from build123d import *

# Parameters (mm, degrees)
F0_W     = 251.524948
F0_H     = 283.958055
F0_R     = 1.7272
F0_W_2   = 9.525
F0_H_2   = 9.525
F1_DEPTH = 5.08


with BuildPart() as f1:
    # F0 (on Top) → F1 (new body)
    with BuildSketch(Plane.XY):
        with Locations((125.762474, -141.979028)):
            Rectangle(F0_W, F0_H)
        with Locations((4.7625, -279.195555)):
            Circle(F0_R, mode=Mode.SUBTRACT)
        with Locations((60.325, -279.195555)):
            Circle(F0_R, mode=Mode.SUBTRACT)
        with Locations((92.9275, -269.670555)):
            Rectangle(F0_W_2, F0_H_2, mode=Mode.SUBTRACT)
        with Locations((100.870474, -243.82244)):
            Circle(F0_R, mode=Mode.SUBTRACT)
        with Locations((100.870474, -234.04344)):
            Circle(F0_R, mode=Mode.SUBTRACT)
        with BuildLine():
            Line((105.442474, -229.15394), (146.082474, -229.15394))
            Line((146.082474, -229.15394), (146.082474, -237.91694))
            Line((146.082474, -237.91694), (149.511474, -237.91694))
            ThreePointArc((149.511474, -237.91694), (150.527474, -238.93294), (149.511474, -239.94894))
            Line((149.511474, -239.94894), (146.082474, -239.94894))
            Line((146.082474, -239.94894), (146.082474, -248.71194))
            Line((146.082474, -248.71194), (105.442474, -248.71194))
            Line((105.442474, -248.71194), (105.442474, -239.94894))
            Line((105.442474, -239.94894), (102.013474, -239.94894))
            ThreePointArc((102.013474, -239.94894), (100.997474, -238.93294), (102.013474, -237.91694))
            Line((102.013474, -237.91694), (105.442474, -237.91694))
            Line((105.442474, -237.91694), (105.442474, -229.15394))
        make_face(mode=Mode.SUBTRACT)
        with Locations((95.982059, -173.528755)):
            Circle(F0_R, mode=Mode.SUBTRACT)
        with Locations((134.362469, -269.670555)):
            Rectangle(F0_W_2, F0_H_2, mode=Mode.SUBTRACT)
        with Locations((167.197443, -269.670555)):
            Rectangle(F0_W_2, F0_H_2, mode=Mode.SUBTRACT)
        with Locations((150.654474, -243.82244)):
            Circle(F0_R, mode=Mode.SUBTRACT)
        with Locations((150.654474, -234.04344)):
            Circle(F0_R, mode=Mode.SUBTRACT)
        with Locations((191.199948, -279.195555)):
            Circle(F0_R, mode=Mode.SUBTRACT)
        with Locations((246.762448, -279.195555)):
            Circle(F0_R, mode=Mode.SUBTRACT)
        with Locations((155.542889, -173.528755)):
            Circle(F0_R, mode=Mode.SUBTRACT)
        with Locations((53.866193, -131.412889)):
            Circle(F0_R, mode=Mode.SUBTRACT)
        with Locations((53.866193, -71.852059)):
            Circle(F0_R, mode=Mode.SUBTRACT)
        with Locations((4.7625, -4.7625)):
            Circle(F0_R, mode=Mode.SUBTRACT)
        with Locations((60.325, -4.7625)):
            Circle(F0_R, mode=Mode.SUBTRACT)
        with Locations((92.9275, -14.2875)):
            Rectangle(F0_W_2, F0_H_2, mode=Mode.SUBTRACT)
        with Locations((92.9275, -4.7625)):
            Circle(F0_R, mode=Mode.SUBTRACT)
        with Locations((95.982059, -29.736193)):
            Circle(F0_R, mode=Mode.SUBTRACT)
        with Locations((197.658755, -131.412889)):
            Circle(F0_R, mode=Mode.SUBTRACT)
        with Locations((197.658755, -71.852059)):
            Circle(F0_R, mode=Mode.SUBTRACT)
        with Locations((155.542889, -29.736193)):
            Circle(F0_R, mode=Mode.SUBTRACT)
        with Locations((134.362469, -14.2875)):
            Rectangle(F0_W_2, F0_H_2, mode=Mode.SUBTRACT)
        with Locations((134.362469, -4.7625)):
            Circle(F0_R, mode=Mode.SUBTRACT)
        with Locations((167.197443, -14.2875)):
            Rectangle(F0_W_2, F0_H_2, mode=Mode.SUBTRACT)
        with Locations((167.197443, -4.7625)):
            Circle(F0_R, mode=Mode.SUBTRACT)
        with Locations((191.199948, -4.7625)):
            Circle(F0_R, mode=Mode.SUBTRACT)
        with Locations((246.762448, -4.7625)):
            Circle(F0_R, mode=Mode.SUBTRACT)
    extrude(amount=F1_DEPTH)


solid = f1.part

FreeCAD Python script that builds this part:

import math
import FreeCAD as App
import Part
import Sketcher
Q = App.Units.Quantity


def add_polygon(sketch, points):
    """Adds a closed chain of lines whose ends are joined by coincident constraints."""
    first, n = sketch.GeometryCount, len(points)
    for a, b in zip(points, points[1:] + points[:1]):
        sketch.addGeometry(Part.LineSegment(App.Vector(*a, 0), App.Vector(*b, 0)), False)
    for i in range(n):
        sketch.addConstraint(Sketcher.Constraint("Coincident", first + i, 2, first + (i + 1) % n, 1))

doc = App.newDocument("Part")
params = doc.addObject("Spreadsheet::Sheet", "Params")
for row, (alias, value) in enumerate([
    ("sketch1_radius", "0.04 in"),
    ("sketch1_diameter", "0.136 in"),
    ("sketch1_width", "1.6 in"),
    ("sketch1_width2", "0.375 in"),
    ("sketch1_width3", "0.135 in"),
    ("pad1_length", "0.2 in"),
], start=1):
    params.set(f"A{row}", alias)
    params.set(f"B{row}", "=" + value)
    params.setAlias(f"B{row}", alias)

body = doc.addObject("PartDesign::Body", "Body")

sketch1 = doc.addObject("Sketcher::SketchObject", "Sketch")
body.addObject(sketch1)
sketch1.AttachmentSupport = (doc.XY_Plane, [""])
sketch1.MapMode = "FlatFace"
add_polygon(sketch1, [(0, 0), (0, -284), (251.5, -284), (251.5, 0)])
sketch1.addGeometry(Part.Circle(App.Vector(4.8, -279.2, 0), App.Vector(0, 0, 1), 1.7), False)
sketch1.addGeometry(Part.Circle(App.Vector(60.3, -279.2, 0), App.Vector(0, 0, 1), 1.7), False)
add_polygon(sketch1, [(97.7, -274.4), (88.2, -274.4), (88.2, -264.9), (97.7, -264.9)])
sketch1.addGeometry(Part.Circle(App.Vector(100.9, -243.8, 0), App.Vector(0, 0, 1), 1.7), False)
sketch1.addGeometry(Part.Circle(App.Vector(100.9, -234, 0), App.Vector(0, 0, 1), 1.7), False)
sketch1.addGeometry(Part.Circle(App.Vector(96, -173.5, 0), App.Vector(0, 0, 1), 1.7), False)
add_polygon(sketch1, [(139.1, -274.4), (129.6, -274.4), (129.6, -264.9), (139.1, -264.9)])
add_polygon(sketch1, [(172, -274.4), (162.4, -274.4), (162.4, -264.9), (172, -264.9)])
sketch1.addGeometry(Part.LineSegment(App.Vector(105.4, -237.9, 0), App.Vector(105.4, -229.2, 0)), False)
sketch1.addGeometry(Part.LineSegment(App.Vector(105.4, -229.2, 0), App.Vector(146.1, -229.2, 0)), False)
sketch1.addGeometry(Part.LineSegment(App.Vector(146.1, -229.2, 0), App.Vector(146.1, -237.9, 0)), False)
sketch1.addGeometry(Part.LineSegment(App.Vector(146.1, -237.9, 0), App.Vector(149.5, -237.9, 0)), False)
sketch1.addGeometry(Part.ArcOfCircle(Part.Circle(App.Vector(149.5, -238.9, 0), App.Vector(0, 0, 1), 1), math.radians(-90), math.radians(90)), False)
sketch1.addGeometry(Part.LineSegment(App.Vector(149.5, -239.9, 0), App.Vector(146.1, -239.9, 0)), False)
sketch1.addGeometry(Part.LineSegment(App.Vector(146.1, -239.9, 0), App.Vector(146.1, -248.7, 0)), False)
sketch1.addGeometry(Part.LineSegment(App.Vector(146.1, -248.7, 0), App.Vector(105.4, -248.7, 0)), False)
sketch1.addGeometry(Part.LineSegment(App.Vector(105.4, -248.7, 0), App.Vector(105.4, -239.9, 0)), False)
sketch1.addGeometry(Part.LineSegment(App.Vector(105.4, -239.9, 0), App.Vector(102, -239.9, 0)), False)
sketch1.addGeometry(Part.ArcOfCircle(Part.Circle(App.Vector(102, -238.9, 0), App.Vector(0, 0, 1), 1), math.radians(90), math.radians(270)), False)
sketch1.addGeometry(Part.LineSegment(App.Vector(102, -237.9, 0), App.Vector(105.4, -237.9, 0)), False)
sketch1.addGeometry(Part.Circle(App.Vector(150.7, -243.8, 0), App.Vector(0, 0, 1), 1.7), False)
sketch1.addGeometry(Part.Circle(App.Vector(150.7, -234, 0), App.Vector(0, 0, 1), 1.7), False)
sketch1.addGeometry(Part.Circle(App.Vector(191.2, -279.2, 0), App.Vector(0, 0, 1), 1.7), False)
sketch1.addGeometry(Part.Circle(App.Vector(246.8, -279.2, 0), App.Vector(0, 0, 1), 1.7), False)
sketch1.addGeometry(Part.Circle(App.Vector(155.5, -173.5, 0), App.Vector(0, 0, 1), 1.7), False)
sketch1.addGeometry(Part.Circle(App.Vector(53.9, -131.4, 0), App.Vector(0, 0, 1), 1.7), False)
sketch1.addGeometry(Part.Circle(App.Vector(53.9, -71.9, 0), App.Vector(0, 0, 1), 1.7), False)
sketch1.addGeometry(Part.Circle(App.Vector(4.8, -4.8, 0), App.Vector(0, 0, 1), 1.7), False)
sketch1.addGeometry(Part.Circle(App.Vector(60.3, -4.8, 0), App.Vector(0, 0, 1), 1.7), False)
add_polygon(sketch1, [(97.7, -19.1), (88.2, -19.1), (88.2, -9.5), (97.7, -9.5)])
sketch1.addGeometry(Part.Circle(App.Vector(92.9, -4.8, 0), App.Vector(0, 0, 1), 1.7), False)
sketch1.addGeometry(Part.Circle(App.Vector(96, -29.7, 0), App.Vector(0, 0, 1), 1.7), False)
sketch1.addGeometry(Part.Circle(App.Vector(197.7, -131.4, 0), App.Vector(0, 0, 1), 1.7), False)
sketch1.addGeometry(Part.Circle(App.Vector(155.5, -29.7, 0), App.Vector(0, 0, 1), 1.7), False)
add_polygon(sketch1, [(139.1, -19.1), (129.6, -19.1), (129.6, -9.5), (139.1, -9.5)])
sketch1.addGeometry(Part.Circle(App.Vector(134.4, -4.8, 0), App.Vector(0, 0, 1), 1.7), False)
add_polygon(sketch1, [(172, -19.1), (162.4, -19.1), (162.4, -9.5), (172, -9.5)])
sketch1.addGeometry(Part.Circle(App.Vector(167.2, -4.8, 0), App.Vector(0, 0, 1), 1.7), False)
sketch1.addGeometry(Part.Circle(App.Vector(197.7, -71.9, 0), App.Vector(0, 0, 1), 1.7), False)
sketch1.addGeometry(Part.Circle(App.Vector(191.2, -4.8, 0), App.Vector(0, 0, 1), 1.7), False)
sketch1.addGeometry(Part.Circle(App.Vector(246.8, -4.8, 0), App.Vector(0, 0, 1), 1.7), False)
sketch1.addConstraint(Sketcher.Constraint("Coincident", 21, 2, 22, 1))
sketch1.addConstraint(Sketcher.Constraint("Coincident", 22, 2, 23, 1))
sketch1.addConstraint(Sketcher.Constraint("Coincident", 23, 2, 24, 1))
sketch1.addConstraint(Sketcher.Constraint("Tangent", 24, 2, 25, 2))
sketch1.addConstraint(Sketcher.Constraint("Tangent", 25, 1, 26, 1))
sketch1.addConstraint(Sketcher.Constraint("Coincident", 26, 2, 27, 1))
sketch1.addConstraint(Sketcher.Constraint("Coincident", 27, 2, 28, 1))
sketch1.addConstraint(Sketcher.Constraint("Coincident", 28, 2, 29, 1))
sketch1.addConstraint(Sketcher.Constraint("Coincident", 29, 2, 30, 1))
sketch1.addConstraint(Sketcher.Constraint("Tangent", 30, 2, 31, 2))
sketch1.addConstraint(Sketcher.Constraint("Tangent", 31, 1, 32, 1))
sketch1.addConstraint(Sketcher.Constraint("Coincident", 32, 2, 21, 1))
sketch1.addConstraint(Sketcher.Constraint("Vertical", 0))
sketch1.addConstraint(Sketcher.Constraint("Horizontal", 1))
sketch1.addConstraint(Sketcher.Constraint("Vertical", 2))
sketch1.addConstraint(Sketcher.Constraint("Horizontal", 3))
sketch1.addConstraint(Sketcher.Constraint("Horizontal", 6))
sketch1.addConstraint(Sketcher.Constraint("Vertical", 7))
sketch1.addConstraint(Sketcher.Constraint("Horizontal", 8))
sketch1.addConstraint(Sketcher.Constraint("Vertical", 9))
sketch1.addConstraint(Sketcher.Constraint("Horizontal", 13))
sketch1.addConstraint(Sketcher.Constraint("Vertical", 14))
sketch1.addConstraint(Sketcher.Constraint("Horizontal", 15))
sketch1.addConstraint(Sketcher.Constraint("Vertical", 16))
sketch1.addConstraint(Sketcher.Constraint("Horizontal", 17))
sketch1.addConstraint(Sketcher.Constraint("Vertical", 18))
sketch1.addConstraint(Sketcher.Constraint("Horizontal", 19))
sketch1.addConstraint(Sketcher.Constraint("Vertical", 20))
sketch1.addConstraint(Sketcher.Constraint("Vertical", 21))
sketch1.addConstraint(Sketcher.Constraint("Horizontal", 22))
sketch1.addConstraint(Sketcher.Constraint("Vertical", 23))
sketch1.addConstraint(Sketcher.Constraint("Horizontal", 24))
sketch1.addConstraint(Sketcher.Constraint("Horizontal", 26))
sketch1.addConstraint(Sketcher.Constraint("Vertical", 27))
sketch1.addConstraint(Sketcher.Constraint("Horizontal", 28))
sketch1.addConstraint(Sketcher.Constraint("Vertical", 29))
sketch1.addConstraint(Sketcher.Constraint("Horizontal", 30))
sketch1.addConstraint(Sketcher.Constraint("Horizontal", 32))
sketch1.addConstraint(Sketcher.Constraint("Horizontal", 42))
sketch1.addConstraint(Sketcher.Constraint("Vertical", 43))
sketch1.addConstraint(Sketcher.Constraint("Horizontal", 44))
sketch1.addConstraint(Sketcher.Constraint("Vertical", 45))
sketch1.addConstraint(Sketcher.Constraint("Horizontal", 50))
sketch1.addConstraint(Sketcher.Constraint("Vertical", 51))
sketch1.addConstraint(Sketcher.Constraint("Horizontal", 52))
sketch1.addConstraint(Sketcher.Constraint("Vertical", 53))
sketch1.addConstraint(Sketcher.Constraint("Horizontal", 55))
sketch1.addConstraint(Sketcher.Constraint("Vertical", 56))
sketch1.addConstraint(Sketcher.Constraint("Horizontal", 57))
sketch1.addConstraint(Sketcher.Constraint("Vertical", 58))
sketch1.addConstraint(Sketcher.Constraint("Coincident", 3, 2, -1, 1))
sketch1.addConstraint(Sketcher.Constraint("Equal", 4, 5))
sketch1.addConstraint(Sketcher.Constraint("Equal", 5, 10))
sketch1.addConstraint(Sketcher.Constraint("Equal", 10, 11))
sketch1.addConstraint(Sketcher.Constraint("Equal", 11, 12))
sketch1.addConstraint(Sketcher.Constraint("Equal", 25, 31))
sketch1.addConstraint(Sketcher.Constraint("Equal", 12, 33))
sketch1.addConstraint(Sketcher.Constraint("Equal", 33, 34))
sketch1.addConstraint(Sketcher.Constraint("Equal", 34, 35))
sketch1.addConstraint(Sketcher.Constraint("Equal", 35, 36))
sketch1.addConstraint(Sketcher.Constraint("Equal", 36, 37))
sketch1.addConstraint(Sketcher.Constraint("Equal", 37, 38))
sketch1.addConstraint(Sketcher.Constraint("Equal", 38, 39))
sketch1.addConstraint(Sketcher.Constraint("Equal", 39, 40))
sketch1.addConstraint(Sketcher.Constraint("Equal", 40, 41))
sketch1.addConstraint(Sketcher.Constraint("Equal", 41, 46))
sketch1.addConstraint(Sketcher.Constraint("Equal", 46, 47))
sketch1.addConstraint(Sketcher.Constraint("Equal", 47, 48))
sketch1.addConstraint(Sketcher.Constraint("Equal", 48, 49))
sketch1.addConstraint(Sketcher.Constraint("Equal", 49, 54))
sketch1.addConstraint(Sketcher.Constraint("Equal", 54, 59))
sketch1.addConstraint(Sketcher.Constraint("Equal", 59, 60))
sketch1.addConstraint(Sketcher.Constraint("Equal", 60, 61))
sketch1.addConstraint(Sketcher.Constraint("Equal", 61, 62))
sketch1.addConstraint(Sketcher.Constraint("Horizontal", 4, 3, 5, 3))
sketch1.addConstraint(Sketcher.Constraint("Horizontal", 25, 3, 31, 3))
sketch1.addConstraint(Sketcher.Constraint("Horizontal", 10, 3, 33, 3))
sketch1.addConstraint(Sketcher.Constraint("Horizontal", 11, 3, 34, 3))
sketch1.addConstraint(Sketcher.Constraint("Horizontal", 5, 3, 35, 3))
sketch1.addConstraint(Sketcher.Constraint("Horizontal", 35, 3, 36, 3))
sketch1.addConstraint(Sketcher.Constraint("Horizontal", 12, 3, 37, 3))
sketch1.addConstraint(Sketcher.Constraint("Horizontal", 40, 3, 41, 3))
sketch1.addConstraint(Sketcher.Constraint("Horizontal", 41, 3, 46, 3))
sketch1.addConstraint(Sketcher.Constraint("Horizontal", 38, 3, 48, 3))
sketch1.addConstraint(Sketcher.Constraint("Horizontal", 47, 3, 49, 3))
sketch1.addConstraint(Sketcher.Constraint("Horizontal", 46, 3, 54, 3))
sketch1.addConstraint(Sketcher.Constraint("Horizontal", 54, 3, 59, 3))
sketch1.addConstraint(Sketcher.Constraint("Horizontal", 39, 3, 60, 3))
sketch1.addConstraint(Sketcher.Constraint("Horizontal", 59, 3, 61, 3))
sketch1.addConstraint(Sketcher.Constraint("Horizontal", 61, 3, 62, 3))
sketch1.addConstraint(Sketcher.Constraint("Horizontal", 9, 2, 13, 2))
sketch1.addConstraint(Sketcher.Constraint("Horizontal", 8, 2, 14, 2))
sketch1.addConstraint(Sketcher.Constraint("Horizontal", 16, 2, 17, 2))
sketch1.addConstraint(Sketcher.Constraint("Horizontal", 15, 2, 18, 2))
sketch1.addConstraint(Sketcher.Constraint("Horizontal", 45, 2, 50, 2))
sketch1.addConstraint(Sketcher.Constraint("Horizontal", 44, 2, 51, 2))
sketch1.addConstraint(Sketcher.Constraint("Horizontal", 53, 2, 55, 2))
sketch1.addConstraint(Sketcher.Constraint("Horizontal", 52, 2, 56, 2))
sketch1.addConstraint(Sketcher.Constraint("Vertical", 10, 3, 11, 3))
sketch1.addConstraint(Sketcher.Constraint("Vertical", 33, 3, 34, 3))
sketch1.addConstraint(Sketcher.Constraint("Vertical", 38, 3, 39, 3))
sketch1.addConstraint(Sketcher.Constraint("Vertical", 4, 3, 40, 3))
sketch1.addConstraint(Sketcher.Constraint("Vertical", 5, 3, 41, 3))
sketch1.addConstraint(Sketcher.Constraint("Vertical", 12, 3, 47, 3))
sketch1.addConstraint(Sketcher.Constraint("Vertical", 37, 3, 49, 3))
sketch1.addConstraint(Sketcher.Constraint("Vertical", 48, 3, 60, 3))
sketch1.addConstraint(Sketcher.Constraint("Vertical", 35, 3, 61, 3))
sketch1.addConstraint(Sketcher.Constraint("Vertical", 36, 3, 62, 3))
sketch1.addConstraint(Sketcher.Constraint("Vertical", 23, 2, 26, 2))
sketch1.addConstraint(Sketcher.Constraint("Vertical", 21, 2, 28, 2))
sketch1.addConstraint(Sketcher.Constraint("Vertical", 7, 2, 42, 2))
sketch1.addConstraint(Sketcher.Constraint("Vertical", 9, 2, 44, 2))
sketch1.addConstraint(Sketcher.Constraint("Vertical", 14, 2, 50, 2))
sketch1.addConstraint(Sketcher.Constraint("Vertical", 16, 2, 52, 2))
sketch1.addConstraint(Sketcher.Constraint("Vertical", 18, 2, 55, 2))
sketch1.addConstraint(Sketcher.Constraint("Vertical", 20, 2, 57, 2))
sketch1.addConstraint(Sketcher.Constraint("Equal", 8, 13))
sketch1.addConstraint(Sketcher.Constraint("Equal", 15, 17))
sketch1.addConstraint(Sketcher.Constraint("Equal", 26, 30))
sketch1.addConstraint(Sketcher.Constraint("Equal", 57, 7))
sketch1.addConstraint(Sketcher.Constraint("Equal", 23, 27))
sketch1.addConstraint(Sketcher.Constraint("Equal", 20, 43))
sketch1.addConstraint(Sketcher.Constraint("Radius", 25, Q("0.04 in")))
sketch1.addConstraint(Sketcher.Constraint("Diameter", 4, Q("0.136 in")))
sketch1.addConstraint(Sketcher.Constraint("DistanceX", 22, 1, 22, 2, Q("1.6 in")))
sketch1.addConstraint(Sketcher.Constraint("DistanceX", 6, 2, 6, 1, Q("0.375 in")))
sketch1.addConstraint(Sketcher.Constraint("DistanceX", 24, 1, 24, 2, Q("0.135 in")))
sketch1.addConstraint(Sketcher.Constraint("DistanceY", 21, 1, 21, 2, Q("0.345 in")))
sketch1.addConstraint(Sketcher.Constraint("DistanceY", 42, 2, -1, 1, Q("0.75 in")))
sketch1.addConstraint(Sketcher.Constraint("DistanceX", -1, 1, 4, 3, Q("0.1875 in")))
sketch1.addConstraint(Sketcher.Constraint("DistanceX", -1, 1, 5, 3, Q("2.375 in")))
sketch1.addConstraint(Sketcher.Constraint("DistanceY", 40, 3, -1, 1, Q("0.1875 in")))
sketch1.addConstraint(Sketcher.Constraint("DistanceX", 1, 1, 1, 2, Q("251.524948 mm")))
sketch1.addConstraint(Sketcher.Constraint("DistanceX", -1, 1, 46, 3, Q("92.9275 mm")))
sketch1.addConstraint(Sketcher.Constraint("DistanceX", -1, 1, 6, 2, Q("88.165 mm")))
sketch1.addConstraint(Sketcher.Constraint("DistanceY", 0, 2, 0, 1, Q("283.958055 mm")))
sketch1.addConstraint(Sketcher.Constraint("DistanceY", 10, 3, -1, 1, Q("243.82244 mm")))
sketch1.addConstraint(Sketcher.Constraint("DistanceY", 11, 3, -1, 1, Q("234.04344 mm")))
sketch1.addConstraint(Sketcher.Constraint("DistanceX", -1, 1, 12, 3, Q("95.982059 mm")))
sketch1.addConstraint(Sketcher.Constraint("DistanceY", 25, 3, -1, 1, Q("238.93294 mm")))
sketch1.addConstraint(Sketcher.Constraint("DistanceX", -1, 1, 35, 3, Q("191.199948 mm")))
sketch1.addConstraint(Sketcher.Constraint("DistanceX", -1, 1, 36, 3, Q("246.762448 mm")))
sketch1.addConstraint(Sketcher.Constraint("DistanceX", -1, 1, 37, 3, Q("155.542889 mm")))
sketch1.addConstraint(Sketcher.Constraint("DistanceY", 38, 3, -1, 1, Q("131.412889 mm")))
sketch1.addConstraint(Sketcher.Constraint("DistanceY", 39, 3, -1, 1, Q("71.852059 mm")))
sketch1.addConstraint(Sketcher.Constraint("DistanceX", -1, 1, 54, 3, Q("134.362469 mm")))
sketch1.addConstraint(Sketcher.Constraint("DistanceX", -1, 1, 13, 2, Q("129.599969 mm")))
sketch1.addConstraint(Sketcher.Constraint("DistanceY", 4, 3, -1, 1, Q("279.195555 mm")))
sketch1.addConstraint(Sketcher.Constraint("DistanceX", -1, 1, 10, 3, Q("100.870474 mm")))
sketch1.addConstraint(Sketcher.Constraint("DistanceY", 12, 3, -1, 1, Q("173.528755 mm")))
sketch1.addConstraint(Sketcher.Constraint("DistanceX", -1, 1, 25, 3, Q("149.511474 mm")))
sketch1.addConstraint(Sketcher.Constraint("DistanceX", -1, 1, 33, 3, Q("150.654474 mm")))
sketch1.addConstraint(Sketcher.Constraint("DistanceX", -1, 1, 38, 3, Q("53.866193 mm")))
sketch1.addConstraint(Sketcher.Constraint("DistanceY", 47, 3, -1, 1, Q("29.736193 mm")))
sketch1.addConstraint(Sketcher.Constraint("DistanceX", -1, 1, 48, 3, Q("197.658755 mm")))
sketch1.addConstraint(Sketcher.Constraint("DistanceX", -1, 1, 59, 3, Q("167.197443 mm")))
sketch1.addConstraint(Sketcher.Constraint("DistanceY", 6, 2, -1, 1, Q("274.433055 mm")))
sketch1.addConstraint(Sketcher.Constraint("DistanceX", -1, 1, 17, 2, Q("162.434943 mm")))
sketch1.setExpression("Constraints[150]", "Params.sketch1_radius")
sketch1.setExpression("Constraints[151]", "Params.sketch1_diameter")
sketch1.setExpression("Constraints[152]", "Params.sketch1_width")
sketch1.setExpression("Constraints[153]", "Params.sketch1_width2")
sketch1.setExpression("Constraints[154]", "Params.sketch1_width3")
pad1 = doc.addObject("PartDesign::Pad", "Pad")
body.addObject(pad1)
pad1.Profile = sketch1
pad1.setExpression("Length", "Params.pad1_length")

doc.recompute()
